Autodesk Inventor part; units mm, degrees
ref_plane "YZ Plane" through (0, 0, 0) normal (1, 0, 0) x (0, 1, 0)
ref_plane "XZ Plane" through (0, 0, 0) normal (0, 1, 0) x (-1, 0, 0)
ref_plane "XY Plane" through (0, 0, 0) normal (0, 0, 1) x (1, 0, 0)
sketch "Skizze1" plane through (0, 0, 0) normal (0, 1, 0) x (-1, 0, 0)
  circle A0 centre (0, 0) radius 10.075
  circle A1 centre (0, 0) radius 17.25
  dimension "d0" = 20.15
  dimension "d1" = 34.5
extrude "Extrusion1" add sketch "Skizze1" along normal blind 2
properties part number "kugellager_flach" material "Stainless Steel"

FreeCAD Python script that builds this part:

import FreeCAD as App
import Part
import Sketcher

doc = App.newDocument("Part")
body = doc.addObject("PartDesign::Body", "Body")

# Sketch on XZ plane
sketch1 = doc.addObject("Sketcher::SketchObject", "Sketch")
body.addObject(sketch1)
sketch1.AttachmentSupport = (doc.XZ_Plane, [""])
sketch1.MapMode = "FlatFace"
sketch1.addGeometry(Part.Circle(App.Vector(0, 0, 0), App.Vector(0, 0, 1), 17), False)
sketch1.addGeometry(Part.Circle(App.Vector(0, 0, 0), App.Vector(0, 0, 1), 10), False)
sketch1.addConstraint(Sketcher.Constraint("Coincident", 0, 3, -1, 1))
sketch1.addConstraint(Sketcher.Constraint("Coincident", 1, 3, -1, 1))
sketch1.addConstraint(Sketcher.Constraint("Diameter", 0, 34.5))
sketch1.addConstraint(Sketcher.Constraint("Diameter", 1, 20.15))
pad1 = doc.addObject("PartDesign::Pad", "Pad")
body.addObject(pad1)
pad1.Profile = sketch1
pad1.Length = 2
pad1.Reversed = True

doc.recompute()
